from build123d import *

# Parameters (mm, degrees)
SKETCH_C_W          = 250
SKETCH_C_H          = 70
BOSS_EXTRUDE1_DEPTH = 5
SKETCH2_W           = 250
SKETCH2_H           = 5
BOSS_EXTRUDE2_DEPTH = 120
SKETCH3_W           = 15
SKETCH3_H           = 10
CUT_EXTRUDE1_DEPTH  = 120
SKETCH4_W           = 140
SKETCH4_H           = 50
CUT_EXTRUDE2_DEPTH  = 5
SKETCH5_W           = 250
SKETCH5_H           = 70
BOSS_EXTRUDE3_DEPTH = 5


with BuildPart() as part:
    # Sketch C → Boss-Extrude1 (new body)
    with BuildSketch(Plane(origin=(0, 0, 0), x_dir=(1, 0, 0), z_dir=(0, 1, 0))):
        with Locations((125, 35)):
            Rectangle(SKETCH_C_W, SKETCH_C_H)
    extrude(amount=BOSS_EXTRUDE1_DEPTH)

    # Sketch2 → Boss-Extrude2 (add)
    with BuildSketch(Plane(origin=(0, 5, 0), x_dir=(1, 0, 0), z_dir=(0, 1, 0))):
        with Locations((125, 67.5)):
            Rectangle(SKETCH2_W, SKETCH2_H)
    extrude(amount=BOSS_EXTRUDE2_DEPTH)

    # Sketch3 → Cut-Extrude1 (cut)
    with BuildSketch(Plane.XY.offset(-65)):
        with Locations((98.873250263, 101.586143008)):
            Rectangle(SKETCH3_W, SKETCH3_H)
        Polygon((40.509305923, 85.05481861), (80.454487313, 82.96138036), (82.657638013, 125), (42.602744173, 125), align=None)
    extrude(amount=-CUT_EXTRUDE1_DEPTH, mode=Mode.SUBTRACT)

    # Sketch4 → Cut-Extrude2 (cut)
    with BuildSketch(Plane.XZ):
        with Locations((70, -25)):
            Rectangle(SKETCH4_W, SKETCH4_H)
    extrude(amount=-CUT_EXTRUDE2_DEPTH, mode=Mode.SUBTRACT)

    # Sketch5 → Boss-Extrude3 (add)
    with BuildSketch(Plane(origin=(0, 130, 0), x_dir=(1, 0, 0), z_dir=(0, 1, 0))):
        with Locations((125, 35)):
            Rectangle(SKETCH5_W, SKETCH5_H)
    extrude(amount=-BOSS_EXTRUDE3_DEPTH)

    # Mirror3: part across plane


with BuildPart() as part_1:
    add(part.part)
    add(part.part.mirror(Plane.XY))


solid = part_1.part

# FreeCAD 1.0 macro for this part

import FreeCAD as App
import Part
import Sketcher
from FreeCAD import Vector
Q = App.Units.Quantity


def add_polygon(sketch, points):
    """Adds a closed chain of lines whose ends are joined by coincident constraints."""
    first, n = sketch.GeometryCount, len(points)
    for a, b in zip(points, points[1:] + points[:1]):
        sketch.addGeometry(Part.LineSegment(App.Vector(*a, 0), App.Vector(*b, 0)), False)
    for i in range(n):
        sketch.addConstraint(Sketcher.Constraint("Coincident", first + i, 2, first + (i + 1) % n, 1))

doc = App.newDocument("Part")
body = doc.addObject("PartDesign::Body", "Body")

# Sketch on XZ plane
sketch1 = body.newObject("Sketcher::SketchObject", "Sketch")
sketch1.AttachmentSupport = (doc.getObject("XZ_Plane"), [""])
sketch1.MapMode = "FlatFace"
add_polygon(sketch1, [(0, -70), (0, 0), (250, 0), (250, -70)])  # lines 0-3
sketch1.addConstraint([
    Sketcher.Constraint("Vertical", 0),
    Sketcher.Constraint("Horizontal", 1),
    Sketcher.Constraint("Vertical", 2),
    Sketcher.Constraint("Horizontal", 3),
    Sketcher.Constraint("Coincident", 0, 2, -1, 1),
    Sketcher.Constraint("DistanceX", 1, 1, 1, 2, Q("250 mm")),
    Sketcher.Constraint("DistanceY", 0, 1, 0, 2, Q("70 mm")),
])
pad1 = body.newObject("PartDesign::Pad", "Pad")
pad1.Profile = sketch1
pad1.Length = 5
pad1.Reversed = True

# Sketch on XZ plane
sketch2 = body.newObject("Sketcher::SketchObject", "Sketch001")
sketch2.AttachmentSupport = (doc.getObject("XZ_Plane"), [""])
sketch2.MapMode = "FlatFace"
sketch2.AttachmentOffset = App.Placement(Vector(0, 0, -5), App.Rotation())
add_polygon(sketch2, [(0, -70), (0, -65), (250, -65), (250, -70)])  # lines 0-3
sketch2.addConstraint([
    Sketcher.Constraint("Vertical", 0),
    Sketcher.Constraint("Horizontal", 1),
    Sketcher.Constraint("Vertical", 2),
    Sketcher.Constraint("Horizontal", 3),
    Sketcher.Constraint("PointOnObject", 0, 2, -2),
    Sketcher.Constraint("DistanceX", 1, 1, 1, 2, Q("250 mm")),
    Sketcher.Constraint("DistanceY", 0, 1, 0, 2, Q("5 mm")),
    Sketcher.Constraint("DistanceY", 0, 2, -1, 1, Q("65 mm")),
])
pad2 = body.newObject("PartDesign::Pad", "Pad001")
pad2.Profile = sketch2
pad2.Length = 120
pad2.Reversed = True

# Sketch on XY plane
sketch3 = body.newObject("Sketcher::SketchObject", "Sketch002")
sketch3.AttachmentSupport = (doc.getObject("XY_Plane"), [""])
sketch3.MapMode = "FlatFace"
sketch3.AttachmentOffset = App.Placement(Vector(0, 0, -65), App.Rotation())
add_polygon(sketch3, [(91, 107), (91, 97), (106, 97), (106, 107)])  # lines 0-3
add_polygon(sketch3, [(41, 85), (80, 83), (83, 125), (43, 125)])  # lines 4-7
sketch3.addConstraint([
    Sketcher.Constraint("Vertical", 0),
    Sketcher.Constraint("Horizontal", 1),
    Sketcher.Constraint("Vertical", 2),
    Sketcher.Constraint("Horizontal", 3),
    Sketcher.Constraint("Horizontal", 6),
    Sketcher.Constraint("Perpendicular", 4, 5),
    Sketcher.Constraint("Parallel", 5, 7),
    Sketcher.Constraint("Equal", 4, 7),
    Sketcher.Constraint("DistanceX", 1, 1, 1, 2, Q("15 mm")),
    Sketcher.Constraint("DistanceY", 0, 2, 0, 1, Q("10 mm")),
    Sketcher.Constraint("Angle", 4, Q("-3 deg")),
    Sketcher.Constraint("Distance", 4, Q("40 mm")),
    Sketcher.Constraint("DistanceY", -1, 1, 5, 2, Q("125 mm")),
    Sketcher.Constraint("DistanceX", -1, 1, 0, 2, Q("91.37325 mm")),
    Sketcher.Constraint("DistanceX", -1, 1, 5, 2, Q("82.657638 mm")),
    Sketcher.Constraint("DistanceY", -1, 1, 0, 2, Q("96.586143 mm")),
])
pocket1 = body.newObject("PartDesign::Pocket", "Pocket")
pocket1.Profile = sketch3
pocket1.Length = 120

# Sketch on XZ plane
sketch4 = body.newObject("Sketcher::SketchObject", "Sketch003")
sketch4.AttachmentSupport = (doc.getObject("XZ_Plane"), [""])
sketch4.MapMode = "FlatFace"
add_polygon(sketch4, [(0, 0), (0, -50), (140, -50), (140, 0)])  # lines 0-3
sketch4.addConstraint([
    Sketcher.Constraint("Vertical", 0),
    Sketcher.Constraint("Horizontal", 1),
    Sketcher.Constraint("Vertical", 2),
    Sketcher.Constraint("Horizontal", 3),
    Sketcher.Constraint("Coincident", 3, 2, -1, 1),
    Sketcher.Constraint("DistanceX", 1, 1, 1, 2, Q("140 mm")),
    Sketcher.Constraint("DistanceY", 0, 2, 0, 1, Q("50 mm")),
])
pocket2 = body.newObject("PartDesign::Pocket", "Pocket001")
pocket2.Profile = sketch4
pocket2.Length = 5

# Sketch on XZ plane
sketch5 = body.newObject("Sketcher::SketchObject", "Sketch004")
sketch5.AttachmentSupport = (doc.getObject("XZ_Plane"), [""])
sketch5.MapMode = "FlatFace"
sketch5.AttachmentOffset = App.Placement(Vector(0, 0, -130), App.Rotation())
add_polygon(sketch5, [(0, -70), (0, 0), (250, 0), (250, -70)])  # lines 0-3
sketch5.addConstraint([
    Sketcher.Constraint("Vertical", 0),
    Sketcher.Constraint("Horizontal", 1),
    Sketcher.Constraint("Vertical", 2),
    Sketcher.Constraint("Horizontal", 3),
    Sketcher.Constraint("Coincident", 0, 2, -1, 1),
    Sketcher.Constraint("DistanceX", 1, 1, 1, 2, Q("250 mm")),
    Sketcher.Constraint("DistanceY", 0, 1, 0, 2, Q("70 mm")),
])
pad3 = body.newObject("PartDesign::Pad", "Pad002")
pad3.Profile = sketch5
pad3.Length = 5
body2 = doc.addObject("PartDesign::Body", "Body001")
doc.recompute()

body2.BaseFeature = body
doc.recompute()

mirroring = doc.addObject("Part::Mirroring", "Mirroring")
mirroring.Source = body
mirroring.Base = Vector(0, 0, 0)
mirroring.Normal = Vector(0, 0, 1)
body3 = doc.addObject("PartDesign::Body", "Body002")
body3.BaseFeature = mirroring
boolean = body2.newObject("PartDesign::Boolean", "Boolean")
boolean.Type = "Fuse"
boolean.addObjects([body3])
doc.recompute()
mirroring.Visibility = False

doc.recompute()
